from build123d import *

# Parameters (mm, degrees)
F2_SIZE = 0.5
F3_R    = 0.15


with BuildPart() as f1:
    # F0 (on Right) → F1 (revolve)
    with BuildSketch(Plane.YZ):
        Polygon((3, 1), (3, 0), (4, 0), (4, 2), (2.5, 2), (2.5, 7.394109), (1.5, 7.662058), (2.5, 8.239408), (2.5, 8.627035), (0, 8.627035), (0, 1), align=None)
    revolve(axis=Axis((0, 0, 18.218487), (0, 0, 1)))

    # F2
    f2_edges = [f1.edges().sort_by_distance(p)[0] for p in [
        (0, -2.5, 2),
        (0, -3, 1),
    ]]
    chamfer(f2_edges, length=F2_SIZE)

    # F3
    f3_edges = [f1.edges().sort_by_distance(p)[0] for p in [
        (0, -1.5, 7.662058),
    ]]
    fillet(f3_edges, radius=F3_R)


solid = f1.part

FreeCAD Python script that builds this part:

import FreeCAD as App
import Part
import Sketcher
from FreeCAD import Vector
Q = App.Units.Quantity


def edges_at(feature, points):
    """Names of the edges that pass closest to the given points."""
    edges = feature.Shape.Edges
    near = lambda p: min(range(len(edges)), key=lambda i: edges[i].distToShape(Part.Vertex(*p))[0])
    return sorted({f"Edge{near(p) + 1}" for p in points})

doc = App.newDocument("Part")
body = doc.addObject("PartDesign::Body", "Body")

# Sketch on YZ plane
sketch1 = body.newObject("Sketcher::SketchObject", "Sketch")
sketch1.AttachmentSupport = (doc.getObject("YZ_Plane"), [""])
sketch1.MapMode = "FlatFace"
sketch1.addGeometry([
    Part.LineSegment(Vector(3, 1, 0), Vector(3, 0, 0)),  # 0
    Part.LineSegment(Vector(3, 0, 0), Vector(4, 0, 0)),  # 1
    Part.LineSegment(Vector(4, 0, 0), Vector(4, 2, 0)),  # 2
    Part.LineSegment(Vector(4, 2, 0), Vector(2.5, 2, 0)),  # 3
    Part.LineSegment(Vector(2.5, 2, 0), Vector(2.5, 7.39, 0)),  # 4
    Part.LineSegment(Vector(2.5, 7.39, 0), Vector(1.5, 7.66, 0)),  # 5
    Part.LineSegment(Vector(1.5, 7.66, 0), Vector(2.5, 8.24, 0)),  # 6
    Part.LineSegment(Vector(2.5, 8.24, 0), Vector(2.5, 8.63, 0)),  # 7
    Part.LineSegment(Vector(2.5, 8.63, 0), Vector(0, 8.63, 0)),  # 8
    Part.LineSegment(Vector(0, 8.63, 0), Vector(0, 1, 0)),  # 9
    Part.LineSegment(Vector(0, 1, 0), Vector(3, 1, 0)),  # 10
], False)
sketch1.addConstraint([
    Sketcher.Constraint("Coincident", 0, 2, 1, 1),
    Sketcher.Constraint("Coincident", 1, 2, 2, 1),
    Sketcher.Constraint("Coincident", 2, 2, 3, 1),
    Sketcher.Constraint("Coincident", 3, 2, 4, 1),
    Sketcher.Constraint("Coincident", 4, 2, 5, 1),
    Sketcher.Constraint("Coincident", 5, 2, 6, 1),
    Sketcher.Constraint("Coincident", 6, 2, 7, 1),
    Sketcher.Constraint("Coincident", 7, 2, 8, 1),
    Sketcher.Constraint("Coincident", 8, 2, 9, 1),
    Sketcher.Constraint("Coincident", 9, 2, 10, 1),
    Sketcher.Constraint("Coincident", 10, 2, 0, 1),
    Sketcher.Constraint("Vertical", 0),
    Sketcher.Constraint("Horizontal", 1),
    Sketcher.Constraint("Vertical", 2),
    Sketcher.Constraint("Horizontal", 3),
    Sketcher.Constraint("Vertical", 4),
    Sketcher.Constraint("Vertical", 7),
    Sketcher.Constraint("Horizontal", 8),
    Sketcher.Constraint("Vertical", 9),
    Sketcher.Constraint("Horizontal", 10),
    Sketcher.Constraint("PointOnObject", 0, 2, -1),
    Sketcher.Constraint("PointOnObject", 8, 2, -2),
    Sketcher.Constraint("Vertical", 4, 2, 6, 2),
    Sketcher.Constraint("Equal", 1, 0),
    Sketcher.Constraint("DistanceX", 1, 1, 1, 2, 1.0),
    Sketcher.Constraint("DistanceX", 10, 1, 10, 2, 3.0),
    Sketcher.Constraint("DistanceY", 2, 1, 2, 2, 2.0),
    Sketcher.Constraint("Angle", 5, Q("165.00001 deg")),
    Sketcher.Constraint("Angle", 6, Q("29.999988 deg")),
    Sketcher.Constraint("DistanceX", 3, 2, 3, 1, 1.5),
    Sketcher.Constraint("DistanceX", 5, 2, 4, 2, 1.0),
    Sketcher.Constraint("DistanceY", 4, 1, 4, 2, 5.394109),
    Sketcher.Constraint("DistanceY", 7, 1, 7, 2, 0.387627),
])
revolution = body.newObject("PartDesign::Revolution", "Revolution")
revolution.Profile = sketch1
revolution.ReferenceAxis = (sketch1, ["V_Axis"])
revolution.Angle = 360
doc.recompute()

chamfer = body.newObject("PartDesign::Chamfer", "Chamfer")
chamfer.Base = (revolution, edges_at(revolution, [(0, -2.5, 2), (0, -3, 1)]))
chamfer.Size = 0.5
doc.recompute()

fillet = body.newObject("PartDesign::Fillet", "Fillet")
fillet.Base = (chamfer, edges_at(chamfer, [(0, -1.5, 7.662)]))
fillet.Radius = 0.15

doc.recompute()
